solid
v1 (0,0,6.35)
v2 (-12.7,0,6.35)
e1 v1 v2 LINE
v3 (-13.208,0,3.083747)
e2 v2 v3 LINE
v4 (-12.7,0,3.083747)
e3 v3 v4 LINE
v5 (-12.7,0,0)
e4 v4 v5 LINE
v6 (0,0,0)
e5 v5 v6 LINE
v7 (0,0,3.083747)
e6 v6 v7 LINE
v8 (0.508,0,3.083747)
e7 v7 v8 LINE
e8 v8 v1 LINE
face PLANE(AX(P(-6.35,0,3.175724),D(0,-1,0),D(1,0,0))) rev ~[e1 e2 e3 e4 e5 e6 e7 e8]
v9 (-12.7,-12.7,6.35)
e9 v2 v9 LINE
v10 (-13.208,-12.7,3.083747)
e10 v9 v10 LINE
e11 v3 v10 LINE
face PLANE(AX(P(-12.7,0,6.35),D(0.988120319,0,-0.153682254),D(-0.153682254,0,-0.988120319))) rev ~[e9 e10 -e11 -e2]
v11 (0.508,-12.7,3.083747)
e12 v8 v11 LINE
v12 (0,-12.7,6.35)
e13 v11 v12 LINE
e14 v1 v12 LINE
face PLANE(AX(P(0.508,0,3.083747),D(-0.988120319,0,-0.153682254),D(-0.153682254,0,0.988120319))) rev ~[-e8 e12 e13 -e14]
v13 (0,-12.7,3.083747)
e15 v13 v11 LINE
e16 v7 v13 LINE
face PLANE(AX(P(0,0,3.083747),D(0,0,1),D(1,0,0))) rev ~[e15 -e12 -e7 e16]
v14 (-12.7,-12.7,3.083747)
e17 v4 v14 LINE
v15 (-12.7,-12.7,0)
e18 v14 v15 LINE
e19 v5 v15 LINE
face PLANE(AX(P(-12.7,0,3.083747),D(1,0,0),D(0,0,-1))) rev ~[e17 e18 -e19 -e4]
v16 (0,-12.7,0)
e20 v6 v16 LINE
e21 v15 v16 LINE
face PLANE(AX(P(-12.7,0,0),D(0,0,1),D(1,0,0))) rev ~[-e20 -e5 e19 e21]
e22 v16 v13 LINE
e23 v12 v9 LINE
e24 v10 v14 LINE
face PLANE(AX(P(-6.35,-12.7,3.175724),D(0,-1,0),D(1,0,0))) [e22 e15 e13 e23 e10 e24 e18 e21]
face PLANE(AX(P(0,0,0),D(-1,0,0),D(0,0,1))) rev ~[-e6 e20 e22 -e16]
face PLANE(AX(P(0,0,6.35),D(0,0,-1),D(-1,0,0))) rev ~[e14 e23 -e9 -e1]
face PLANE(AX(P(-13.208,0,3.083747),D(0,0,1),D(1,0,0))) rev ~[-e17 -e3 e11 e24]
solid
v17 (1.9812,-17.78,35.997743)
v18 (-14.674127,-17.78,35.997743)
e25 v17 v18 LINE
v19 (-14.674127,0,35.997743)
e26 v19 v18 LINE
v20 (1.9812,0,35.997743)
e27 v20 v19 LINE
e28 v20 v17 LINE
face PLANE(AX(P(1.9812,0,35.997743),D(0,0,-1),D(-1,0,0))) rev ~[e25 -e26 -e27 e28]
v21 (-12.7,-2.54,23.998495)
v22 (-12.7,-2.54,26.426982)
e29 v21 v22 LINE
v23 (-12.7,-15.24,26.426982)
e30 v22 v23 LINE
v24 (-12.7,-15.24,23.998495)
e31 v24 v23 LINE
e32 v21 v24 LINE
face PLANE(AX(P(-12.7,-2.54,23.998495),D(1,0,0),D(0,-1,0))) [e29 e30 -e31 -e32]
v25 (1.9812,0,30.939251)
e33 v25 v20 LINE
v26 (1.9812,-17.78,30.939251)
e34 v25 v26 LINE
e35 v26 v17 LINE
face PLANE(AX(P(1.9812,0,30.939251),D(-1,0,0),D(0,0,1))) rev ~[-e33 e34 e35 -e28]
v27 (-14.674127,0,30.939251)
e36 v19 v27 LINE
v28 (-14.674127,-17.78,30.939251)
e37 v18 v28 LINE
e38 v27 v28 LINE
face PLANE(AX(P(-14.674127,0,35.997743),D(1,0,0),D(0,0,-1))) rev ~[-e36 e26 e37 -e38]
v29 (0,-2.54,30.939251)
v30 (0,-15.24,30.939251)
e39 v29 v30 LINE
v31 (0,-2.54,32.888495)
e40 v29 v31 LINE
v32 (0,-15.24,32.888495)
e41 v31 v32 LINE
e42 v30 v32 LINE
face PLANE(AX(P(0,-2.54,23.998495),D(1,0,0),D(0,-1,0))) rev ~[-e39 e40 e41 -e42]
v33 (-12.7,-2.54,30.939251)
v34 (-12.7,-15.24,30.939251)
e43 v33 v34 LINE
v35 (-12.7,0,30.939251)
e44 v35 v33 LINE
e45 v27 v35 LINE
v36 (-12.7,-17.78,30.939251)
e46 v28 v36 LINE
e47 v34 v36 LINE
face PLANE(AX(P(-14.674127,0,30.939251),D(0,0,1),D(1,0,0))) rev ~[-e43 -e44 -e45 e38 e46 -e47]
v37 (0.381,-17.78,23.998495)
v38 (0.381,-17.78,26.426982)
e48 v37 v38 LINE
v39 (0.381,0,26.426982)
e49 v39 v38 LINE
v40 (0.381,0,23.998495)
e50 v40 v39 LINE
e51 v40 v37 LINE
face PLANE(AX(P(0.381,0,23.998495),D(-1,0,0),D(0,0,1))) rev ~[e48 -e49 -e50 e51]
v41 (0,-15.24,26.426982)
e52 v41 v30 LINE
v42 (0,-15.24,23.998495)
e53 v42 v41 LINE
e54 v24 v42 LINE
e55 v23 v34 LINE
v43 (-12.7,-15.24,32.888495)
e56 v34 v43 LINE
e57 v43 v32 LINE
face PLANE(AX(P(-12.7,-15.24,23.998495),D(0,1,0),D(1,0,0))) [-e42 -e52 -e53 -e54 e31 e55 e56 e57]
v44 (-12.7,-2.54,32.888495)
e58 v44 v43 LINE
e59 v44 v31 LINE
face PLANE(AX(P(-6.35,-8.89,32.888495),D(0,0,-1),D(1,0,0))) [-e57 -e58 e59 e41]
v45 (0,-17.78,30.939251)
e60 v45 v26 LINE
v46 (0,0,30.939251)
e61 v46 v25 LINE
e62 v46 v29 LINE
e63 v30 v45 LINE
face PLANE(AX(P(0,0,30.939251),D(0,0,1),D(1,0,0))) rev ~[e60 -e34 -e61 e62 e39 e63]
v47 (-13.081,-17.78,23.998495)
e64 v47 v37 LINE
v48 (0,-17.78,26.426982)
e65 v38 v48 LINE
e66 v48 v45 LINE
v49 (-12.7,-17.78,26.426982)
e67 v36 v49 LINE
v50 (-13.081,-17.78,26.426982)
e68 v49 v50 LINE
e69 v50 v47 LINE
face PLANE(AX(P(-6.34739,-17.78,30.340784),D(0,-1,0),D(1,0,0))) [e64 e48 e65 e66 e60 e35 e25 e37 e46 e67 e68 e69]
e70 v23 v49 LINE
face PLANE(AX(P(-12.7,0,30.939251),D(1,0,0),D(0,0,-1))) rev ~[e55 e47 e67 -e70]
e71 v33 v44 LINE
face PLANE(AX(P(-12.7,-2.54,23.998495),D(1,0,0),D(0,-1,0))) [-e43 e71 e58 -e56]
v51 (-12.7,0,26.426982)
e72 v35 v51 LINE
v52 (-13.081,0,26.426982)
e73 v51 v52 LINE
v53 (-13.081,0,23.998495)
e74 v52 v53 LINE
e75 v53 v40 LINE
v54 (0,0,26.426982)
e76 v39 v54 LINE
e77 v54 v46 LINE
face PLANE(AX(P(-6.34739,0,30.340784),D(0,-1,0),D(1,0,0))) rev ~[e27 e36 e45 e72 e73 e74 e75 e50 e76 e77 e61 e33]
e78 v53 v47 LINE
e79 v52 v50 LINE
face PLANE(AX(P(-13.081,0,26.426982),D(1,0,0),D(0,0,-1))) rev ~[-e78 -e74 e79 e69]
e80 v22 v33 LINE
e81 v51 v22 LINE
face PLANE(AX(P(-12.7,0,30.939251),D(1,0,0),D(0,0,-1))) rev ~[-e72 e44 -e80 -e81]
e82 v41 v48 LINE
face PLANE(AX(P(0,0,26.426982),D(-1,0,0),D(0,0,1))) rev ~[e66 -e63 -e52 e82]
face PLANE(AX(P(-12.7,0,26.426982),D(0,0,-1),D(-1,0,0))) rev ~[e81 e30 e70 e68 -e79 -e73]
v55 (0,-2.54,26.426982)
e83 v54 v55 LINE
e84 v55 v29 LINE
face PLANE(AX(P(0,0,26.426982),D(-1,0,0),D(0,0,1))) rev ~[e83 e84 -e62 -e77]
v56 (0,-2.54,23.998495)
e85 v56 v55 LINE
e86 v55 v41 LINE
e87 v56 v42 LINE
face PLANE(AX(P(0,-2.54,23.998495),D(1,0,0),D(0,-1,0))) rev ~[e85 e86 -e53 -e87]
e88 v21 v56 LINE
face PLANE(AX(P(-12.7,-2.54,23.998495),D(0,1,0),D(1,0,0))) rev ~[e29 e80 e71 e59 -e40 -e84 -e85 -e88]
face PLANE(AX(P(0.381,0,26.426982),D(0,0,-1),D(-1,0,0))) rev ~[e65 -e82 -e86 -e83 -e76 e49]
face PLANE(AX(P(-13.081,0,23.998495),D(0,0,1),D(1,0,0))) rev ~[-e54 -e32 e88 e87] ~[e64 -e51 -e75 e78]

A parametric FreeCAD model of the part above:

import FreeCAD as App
import Part
import Sketcher

V = App.Vector
Q = App.Units.Quantity

doc = App.newDocument("Part")
body = doc.addObject("PartDesign::Body", "Body")

# Sketch on XZ plane
sketch1 = body.newObject("Sketcher::SketchObject", "Sketch")
sketch1.AttachmentSupport = (doc.getObject("XZ_Plane"), [""])
sketch1.MapMode = "FlatFace"
sketch1.addGeometry([
    Part.LineSegment(V(-12.7, 0, 0), V(0, 0, 0)),  # 0
    Part.LineSegment(V(0, 0, 0), V(0, 3.083747, 0)),  # 1
    Part.LineSegment(V(0, 3.083747, 0), V(0.508, 3.083747, 0)),  # 2
    Part.LineSegment(V(0.508, 3.083747, 0), V(0, 6.35, 0)),  # 3
    Part.LineSegment(V(0, 6.35, 0), V(-12.7, 6.35, 0)),  # 4
    Part.LineSegment(V(-12.7, 6.35, 0), V(-13.208, 3.083747, 0)),  # 5
    Part.LineSegment(V(-13.208, 3.083747, 0), V(-12.7, 3.083747, 0)),  # 6
    Part.LineSegment(V(-12.7, 3.083747, 0), V(-12.7, 0, 0)),  # 7
], False)
sketch1.addConstraint([
    Sketcher.Constraint("Coincident", 0, 2, 1, 1),
    Sketcher.Constraint("Coincident", 1, 2, 2, 1),
    Sketcher.Constraint("Coincident", 2, 2, 3, 1),
    Sketcher.Constraint("Coincident", 3, 2, 4, 1),
    Sketcher.Constraint("Coincident", 4, 2, 5, 1),
    Sketcher.Constraint("Coincident", 5, 2, 6, 1),
    Sketcher.Constraint("Coincident", 6, 2, 7, 1),
    Sketcher.Constraint("Coincident", 7, 2, 0, 1),
    Sketcher.Constraint("Horizontal", 0),
    Sketcher.Constraint("Vertical", 1),
    Sketcher.Constraint("Horizontal", 2),
    Sketcher.Constraint("Horizontal", 4),
    Sketcher.Constraint("Horizontal", 6),
    Sketcher.Constraint("Vertical", 7),
    Sketcher.Constraint("Coincident", 0, 2, -1, 1),
    Sketcher.Constraint("PointOnObject", 3, 2, -2),
    Sketcher.Constraint("Horizontal", 2, 2, 5, 2),
    Sketcher.Constraint("Vertical", 4, 2, 6, 2),
    Sketcher.Constraint("Equal", 2, 6),
    Sketcher.Constraint("DistanceX", 0, 1, 0, 2, Q("0.5 in")),
    Sketcher.Constraint("DistanceX", 2, 1, 2, 2, Q("0.02 in")),
    Sketcher.Constraint("DistanceY", -1, 1, 3, 2, Q("0.25 in")),
    Sketcher.Constraint("Distance", 3, 3.305522),
])
pad1 = body.newObject("PartDesign::Pad", "Pad")
pad1.Profile = sketch1
pad1.Length = Q("0.5 in")
body2 = doc.addObject("PartDesign::Body", "Body001")

# Sketch on XZ plane
sketch2 = body2.newObject("Sketcher::SketchObject", "Sketch001")
sketch2.AttachmentSupport = (doc.getObject("XZ_Plane001"), [""])
sketch2.MapMode = "FlatFace"
sketch2.addGeometry([
    Part.LineSegment(V(0.381, 23.998495, 0), V(0.381, 26.426982, 0)),  # 0
    Part.LineSegment(V(0.381, 26.426982, 0), V(0, 26.426982, 0)),  # 1
    Part.LineSegment(V(0, 26.426982, 0), V(0, 30.939251, 0)),  # 2
    Part.LineSegment(V(0, 30.939251, 0), V(1.9812, 30.939251, 0)),  # 3
    Part.LineSegment(V(1.9812, 30.939251, 0), V(1.9812, 35.997743, 0)),  # 4
    Part.LineSegment(V(1.9812, 35.997743, 0), V(-14.674127, 35.997743, 0)),  # 5
    Part.LineSegment(V(-14.674127, 35.997743, 0), V(-14.674127, 30.939251, 0)),  # 6
    Part.LineSegment(V(-14.674127, 30.939251, 0), V(-12.7, 30.939251, 0)),  # 7
    Part.LineSegment(V(-12.7, 30.939251, 0), V(-12.7, 26.426982, 0)),  # 8
    Part.LineSegment(V(-12.7, 26.426982, 0), V(-13.081, 26.426982, 0)),  # 9
    Part.LineSegment(V(-13.081, 26.426982, 0), V(-13.081, 23.998495, 0)),  # 10
    Part.LineSegment(V(-13.081, 23.998495, 0), V(0.381, 23.998495, 0)),  # 11
], False)
sketch2.addConstraint([
    Sketcher.Constraint("Coincident", 0, 2, 1, 1),
    Sketcher.Constraint("Coincident", 1, 2, 2, 1),
    Sketcher.Constraint("Coincident", 2, 2, 3, 1),
    Sketcher.Constraint("Coincident", 3, 2, 4, 1),
    Sketcher.Constraint("Coincident", 4, 2, 5, 1),
    Sketcher.Constraint("Coincident", 5, 2, 6, 1),
    Sketcher.Constraint("Coincident", 6, 2, 7, 1),
    Sketcher.Constraint("Coincident", 7, 2, 8, 1),
    Sketcher.Constraint("Coincident", 8, 2, 9, 1),
    Sketcher.Constraint("Coincident", 9, 2, 10, 1),
    Sketcher.Constraint("Coincident", 10, 2, 11, 1),
    Sketcher.Constraint("Coincident", 11, 2, 0, 1),
    Sketcher.Constraint("Vertical", 0),
    Sketcher.Constraint("Horizontal", 1),
    Sketcher.Constraint("Vertical", 2),
    Sketcher.Constraint("Horizontal", 3),
    Sketcher.Constraint("Vertical", 4),
    Sketcher.Constraint("Horizontal", 5),
    Sketcher.Constraint("Vertical", 6),
    Sketcher.Constraint("Horizontal", 7),
    Sketcher.Constraint("Vertical", 8),
    Sketcher.Constraint("Horizontal", 9),
    Sketcher.Constraint("Vertical", 10),
    Sketcher.Constraint("Horizontal", 11),
    Sketcher.Constraint("PointOnObject", 1, 2, -2),
    Sketcher.Constraint("Horizontal", 3, 2, 6, 2),
    Sketcher.Constraint("Horizontal", 1, 2, 8, 2),
    Sketcher.Constraint("Equal", 1, 9),
    Sketcher.Constraint("DistanceX", 11, 1, 11, 2, Q("0.53 in")),
    Sketcher.Constraint("DistanceX", 7, 2, -1, 1, Q("0.5 in")),
    Sketcher.Constraint("DistanceX", 3, 1, 3, 2, Q("0.078 in")),
    Sketcher.Constraint("DistanceY", 2, 1, 2, 2, 4.512269),
    Sketcher.Constraint("DistanceX", 5, 2, 5, 1, 16.655327),
    Sketcher.Constraint("DistanceY", 0, 1, 0, 2, 2.428487),
    Sketcher.Constraint("DistanceY", 4, 1, 4, 2, 5.058492),
    Sketcher.Constraint("DistanceY", -1, 1, 0, 2, 26.426982),
])
pad2 = body2.newObject("PartDesign::Pad", "Pad001")
pad2.Profile = sketch2
pad2.Length = Q("0.7 in")

# Sketch on XY plane
sketch3 = body2.newObject("Sketcher::SketchObject", "Sketch002")
sketch3.AttachmentSupport = (doc.getObject("XY_Plane001"), [""])
sketch3.MapMode = "FlatFace"
sketch3.AttachmentOffset = App.Placement(V(0, 0, 23.998495), App.Rotation())
sketch3.addGeometry([
    Part.LineSegment(V(-12.7, -15.24, 0), V(-12.7, -2.54, 0)),
    Part.LineSegment(V(-12.7, -2.54, 0), V(0, -2.54, 0)),
    Part.LineSegment(V(0, -2.54, 0), V(0, -15.24, 0)),
    Part.LineSegment(V(0, -15.24, 0), V(-12.7, -15.24, 0)),
], False)
sketch3.addConstraint([
    Sketcher.Constraint("Coincident", 0, 2, 1, 1),
    Sketcher.Constraint("Coincident", 1, 2, 2, 1),
    Sketcher.Constraint("Coincident", 2, 2, 3, 1),
    Sketcher.Constraint("Coincident", 3, 2, 0, 1),
    Sketcher.Constraint("Vertical", 0),
    Sketcher.Constraint("Horizontal", 1),
    Sketcher.Constraint("Vertical", 2),
    Sketcher.Constraint("Horizontal", 3),
    Sketcher.Constraint("PointOnObject", 1, 2, -2),
    Sketcher.Constraint("Equal", 3, 0),
    Sketcher.Constraint("DistanceX", 1, 1, 1, 2, Q("0.5 in")),
    Sketcher.Constraint("DistanceY", 0, 2, -1, 1, Q("0.1 in")),
])
pocket1 = body2.newObject("PartDesign::Pocket", "Pocket")
pocket1.Profile = sketch3
pocket1.Length = Q("0.35 in")
pocket1.Reversed = True

doc.recompute()
